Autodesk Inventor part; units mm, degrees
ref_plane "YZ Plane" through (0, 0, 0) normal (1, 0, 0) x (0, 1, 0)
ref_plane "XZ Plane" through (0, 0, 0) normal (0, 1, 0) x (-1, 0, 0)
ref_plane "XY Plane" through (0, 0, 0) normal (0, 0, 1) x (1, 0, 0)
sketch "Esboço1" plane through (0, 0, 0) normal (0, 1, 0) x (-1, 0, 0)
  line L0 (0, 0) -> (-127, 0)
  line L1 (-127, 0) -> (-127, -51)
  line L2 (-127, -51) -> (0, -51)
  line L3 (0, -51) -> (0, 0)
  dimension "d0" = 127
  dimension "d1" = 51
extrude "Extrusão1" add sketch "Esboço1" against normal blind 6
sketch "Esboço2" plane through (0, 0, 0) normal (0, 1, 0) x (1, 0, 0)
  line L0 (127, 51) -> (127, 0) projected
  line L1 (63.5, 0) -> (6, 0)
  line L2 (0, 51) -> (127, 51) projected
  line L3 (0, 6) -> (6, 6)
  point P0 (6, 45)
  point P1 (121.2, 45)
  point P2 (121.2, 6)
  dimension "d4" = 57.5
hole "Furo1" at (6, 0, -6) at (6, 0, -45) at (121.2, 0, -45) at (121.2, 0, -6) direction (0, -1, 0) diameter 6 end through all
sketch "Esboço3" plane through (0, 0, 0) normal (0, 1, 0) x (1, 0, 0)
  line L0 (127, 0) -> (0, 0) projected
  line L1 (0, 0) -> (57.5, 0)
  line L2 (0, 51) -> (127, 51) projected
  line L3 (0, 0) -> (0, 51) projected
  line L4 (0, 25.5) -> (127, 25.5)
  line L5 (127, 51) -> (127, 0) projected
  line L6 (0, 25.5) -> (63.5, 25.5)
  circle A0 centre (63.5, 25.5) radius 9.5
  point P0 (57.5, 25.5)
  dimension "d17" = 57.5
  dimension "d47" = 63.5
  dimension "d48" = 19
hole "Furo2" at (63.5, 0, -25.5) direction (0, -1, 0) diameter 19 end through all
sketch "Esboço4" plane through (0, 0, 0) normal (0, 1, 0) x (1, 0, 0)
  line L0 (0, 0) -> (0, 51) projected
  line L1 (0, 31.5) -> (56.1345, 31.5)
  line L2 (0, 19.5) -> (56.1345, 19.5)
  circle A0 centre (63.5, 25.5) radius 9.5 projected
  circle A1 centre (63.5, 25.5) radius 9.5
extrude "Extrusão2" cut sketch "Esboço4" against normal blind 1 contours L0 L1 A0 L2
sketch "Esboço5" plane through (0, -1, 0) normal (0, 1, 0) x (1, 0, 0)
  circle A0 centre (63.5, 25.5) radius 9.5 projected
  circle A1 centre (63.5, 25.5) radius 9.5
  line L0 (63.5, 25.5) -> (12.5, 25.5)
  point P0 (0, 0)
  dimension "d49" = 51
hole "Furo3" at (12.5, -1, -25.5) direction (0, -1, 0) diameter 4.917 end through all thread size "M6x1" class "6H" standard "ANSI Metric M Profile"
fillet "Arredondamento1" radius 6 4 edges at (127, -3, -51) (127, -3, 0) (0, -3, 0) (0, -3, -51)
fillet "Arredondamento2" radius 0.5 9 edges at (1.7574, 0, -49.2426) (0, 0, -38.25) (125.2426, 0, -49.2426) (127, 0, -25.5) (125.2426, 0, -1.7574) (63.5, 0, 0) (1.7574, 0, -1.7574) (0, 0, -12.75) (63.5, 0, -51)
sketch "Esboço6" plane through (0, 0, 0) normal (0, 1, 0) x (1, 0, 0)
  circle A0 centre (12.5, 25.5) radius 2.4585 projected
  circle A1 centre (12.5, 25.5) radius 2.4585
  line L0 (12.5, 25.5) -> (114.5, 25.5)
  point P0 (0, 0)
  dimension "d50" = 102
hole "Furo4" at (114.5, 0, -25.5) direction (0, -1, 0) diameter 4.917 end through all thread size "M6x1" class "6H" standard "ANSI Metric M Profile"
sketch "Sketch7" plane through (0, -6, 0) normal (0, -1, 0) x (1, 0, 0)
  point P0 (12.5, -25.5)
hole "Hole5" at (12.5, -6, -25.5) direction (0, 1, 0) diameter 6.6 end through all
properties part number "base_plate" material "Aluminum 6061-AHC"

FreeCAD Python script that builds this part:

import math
import FreeCAD as App
import Part
import Sketcher

V = App.Vector


def edges_at(feature, points):
    """Names of the edges that pass closest to the given points."""
    edges = feature.Shape.Edges
    near = lambda p: min(range(len(edges)), key=lambda i: edges[i].distToShape(Part.Vertex(*p))[0])
    return sorted({f"Edge{near(p) + 1}" for p in points})

doc = App.newDocument("Part")
params = doc.addObject("Spreadsheet::Sheet", "Params")
for row, (alias, value) in enumerate([
    ("sketch1_width", "127 mm"),
    ("sketch1_height", "51 mm"),
    ("pad1_length", "6 mm"),
    ("sketch2_diameter", "6 mm"),
    ("hole_diameter", "6 mm"),
    ("sketch3_diameter", "19 mm"),
    ("hole2_diameter", "19 mm"),
    ("sketch4_radius", "9.5 mm"),
    ("sketch4_height", "12 mm"),
    ("pocket1_length", "1 mm"),
    ("hole3_diameter", "4.917 mm"),
    ("fillet_radius", "6 mm"),
    ("fillet2_radius", "0.5 mm"),
    ("hole4_diameter", "4.917 mm"),
    ("sketch7_diameter", "6.6 mm"),
    ("hole5_diameter", "6.6 mm"),
], start=1):
    params.set(f"A{row}", alias)
    params.set(f"B{row}", "=" + value)
    params.setAlias(f"B{row}", alias)

body = doc.addObject("PartDesign::Body", "Body")

# Sketch on XZ plane
sketch1 = doc.addObject("Sketcher::SketchObject", "Sketch")
body.addObject(sketch1)
sketch1.AttachmentSupport = (doc.XZ_Plane, [""])
sketch1.MapMode = "FlatFace"
sketch1.addGeometry([
    Part.LineSegment(V(0, -51, 0), V(0, 0, 0)),
    Part.LineSegment(V(0, 0, 0), V(127, 0, 0)),
    Part.LineSegment(V(127, 0, 0), V(127, -51, 0)),
    Part.LineSegment(V(127, -51, 0), V(0, -51, 0)),
], False)
sketch1.addConstraint([
    Sketcher.Constraint("Coincident", 0, 2, 1, 1),
    Sketcher.Constraint("Coincident", 1, 2, 2, 1),
    Sketcher.Constraint("Coincident", 2, 2, 3, 1),
    Sketcher.Constraint("Coincident", 3, 2, 0, 1),
    Sketcher.Constraint("Vertical", 0),
    Sketcher.Constraint("Horizontal", 1),
    Sketcher.Constraint("Vertical", 2),
    Sketcher.Constraint("Horizontal", 3),
    Sketcher.Constraint("Coincident", 0, 2, -1, 1),
    Sketcher.Constraint("DistanceX", 1, 1, 1, 2, 127.0),
    Sketcher.Constraint("DistanceY", 0, 1, 0, 2, 51.0),
])
sketch1.setExpression("Constraints[9]", "Params.sketch1_width")
sketch1.setExpression("Constraints[10]", "Params.sketch1_height")
pad1 = doc.addObject("PartDesign::Pad", "Pad")
body.addObject(pad1)
pad1.Profile = sketch1
pad1.setExpression("Length", "Params.pad1_length")

# Sketch on XZ plane
sketch2 = doc.addObject("Sketcher::SketchObject", "Sketch001")
body.addObject(sketch2)
sketch2.AttachmentSupport = (doc.XZ_Plane, [""])
sketch2.MapMode = "FlatFace"
sketch2.addGeometry([
    Part.Circle(V(6, -6, 0), V(0, 0, 1), 3),
    Part.Circle(V(6, -45, 0), V(0, 0, 1), 3),
    Part.Circle(V(121.2, -45, 0), V(0, 0, 1), 3),
    Part.Circle(V(121.2, -6, 0), V(0, 0, 1), 3),
], False)
sketch2.addConstraint([
    Sketcher.Constraint("Equal", 0, 1),
    Sketcher.Constraint("Equal", 1, 2),
    Sketcher.Constraint("Equal", 2, 3),
    Sketcher.Constraint("Horizontal", 1, 3, 2, 3),
    Sketcher.Constraint("Horizontal", 0, 3, 3, 3),
    Sketcher.Constraint("Vertical", 0, 3, 1, 3),
    Sketcher.Constraint("Vertical", 2, 3, 3, 3),
    Sketcher.Constraint("Diameter", 0, 6.0),
    Sketcher.Constraint("DistanceX", -1, 1, 0, 3, 6.0),
    Sketcher.Constraint("DistanceY", 0, 3, -1, 1, 6.0),
    Sketcher.Constraint("DistanceY", 1, 3, -1, 1, 45.0),
    Sketcher.Constraint("DistanceX", -1, 1, 2, 3, 121.2),
])
sketch2.setExpression("Constraints[7]", "Params.sketch2_diameter")
doc.recompute()
hole = doc.addObject("PartDesign::Hole", "Hole")
body.addObject(hole)
hole.Profile = sketch2
hole.ThreadType = "None"
hole.setExpression("Diameter", "Params.hole_diameter")
hole.DepthType = "ThroughAll"
hole.Reversed = True

# Sketch on XZ plane
sketch3 = doc.addObject("Sketcher::SketchObject", "Sketch002")
body.addObject(sketch3)
sketch3.AttachmentSupport = (doc.XZ_Plane, [""])
sketch3.MapMode = "FlatFace"
sketch3.addGeometry(Part.Circle(V(64, -26, 0), V(0, 0, 1), 10), False)
sketch3.addConstraint([
    Sketcher.Constraint("Diameter", 0, 19.0),
    Sketcher.Constraint("DistanceX", -1, 1, 0, 3, 63.5),
    Sketcher.Constraint("DistanceY", 0, 3, -1, 1, 25.5),
])
sketch3.setExpression("Constraints[0]", "Params.sketch3_diameter")
doc.recompute()
hole2 = doc.addObject("PartDesign::Hole", "Hole001")
body.addObject(hole2)
hole2.Profile = sketch3
hole2.ThreadType = "None"
hole2.setExpression("Diameter", "Params.hole2_diameter")
hole2.DepthType = "ThroughAll"
hole2.Reversed = True

# Sketch on XZ plane
sketch4 = doc.addObject("Sketcher::SketchObject", "Sketch003")
body.addObject(sketch4)
sketch4.AttachmentSupport = (doc.XZ_Plane, [""])
sketch4.MapMode = "FlatFace"
sketch4.addGeometry([
    Part.LineSegment(V(0, -32, 0), V(0, -20, 0)),
    Part.LineSegment(V(0, -20, 0), V(56, -20, 0)),
    Part.ArcOfCircle(Part.Circle(V(64, -26, 0), V(0, 0, 1), 10), math.radians(141), math.radians(219)),
    Part.LineSegment(V(56, -32, 0), V(0, -32, 0)),
], False)
sketch4.addConstraint([
    Sketcher.Constraint("Coincident", 0, 2, 1, 1),
    Sketcher.Constraint("Coincident", 1, 2, 2, 1),
    Sketcher.Constraint("Coincident", 2, 2, 3, 1),
    Sketcher.Constraint("Coincident", 3, 2, 0, 1),
    Sketcher.Constraint("Vertical", 0),
    Sketcher.Constraint("Horizontal", 1),
    Sketcher.Constraint("Horizontal", 3),
    Sketcher.Constraint("PointOnObject", 0, 2, -2),
    Sketcher.Constraint("Vertical", 1, 2, 2, 2),
    Sketcher.Constraint("Radius", 2, 9.5),
    Sketcher.Constraint("DistanceY", 0, 1, 0, 2, 12.0),
    Sketcher.Constraint("DistanceX", -1, 1, 2, 3, 63.5),
    Sketcher.Constraint("DistanceY", 2, 3, -1, 1, 25.5),
])
sketch4.setExpression("Constraints[9]", "Params.sketch4_radius")
sketch4.setExpression("Constraints[10]", "Params.sketch4_height")
pocket1 = doc.addObject("PartDesign::Pocket", "Pocket")
body.addObject(pocket1)
pocket1.Profile = sketch4
pocket1.setExpression("Length", "Params.pocket1_length")
pocket1.Reversed = True

# Sketch on XZ plane
sketch5 = doc.addObject("Sketcher::SketchObject", "Sketch004")
body.addObject(sketch5)
sketch5.AttachmentSupport = (doc.XZ_Plane, [""])
sketch5.MapMode = "FlatFace"
sketch5.AttachmentOffset = App.Placement(V(0, 0, 1), App.Rotation())
sketch5.addGeometry(Part.Circle(V(12.5, -25.5, 0), V(0, 0, 1), 2.5), False)
sketch5.addConstraint([
    Sketcher.Constraint("Diameter", 0, 4.917),
    Sketcher.Constraint("DistanceX", -1, 1, 0, 3, 12.5),
    Sketcher.Constraint("DistanceY", 0, 3, -1, 1, 25.5),
])
doc.recompute()
hole3 = doc.addObject("PartDesign::Hole", "Hole002")
body.addObject(hole3)
hole3.Profile = sketch5
hole3.ThreadType = "None"
hole3.setExpression("Diameter", "Params.hole3_diameter")
hole3.DepthType = "ThroughAll"
hole3.Reversed = True
doc.recompute()

fillet = doc.addObject("PartDesign::Fillet", "Fillet")
body.addObject(fillet)
fillet.Base = (hole3, edges_at(hole3, [
    (127, -3, -51),
    (127, -3, 0),
    (0, -3, 0),
    (0, -3, -51),
]))
fillet.setExpression("Radius", "Params.fillet_radius")
doc.recompute()

fillet2 = doc.addObject("PartDesign::Fillet", "Fillet001")
body.addObject(fillet2)
fillet2.Base = (fillet, edges_at(fillet, [
    (1.757, 0, -49.243),
    (0, 0, -38.25),
    (125.243, 0, -49.243),
    (127, 0, -25.5),
    (125.243, 0, -1.757),
    (63.5, 0, 0),
    (1.757, 0, -1.757),
    (0, 0, -12.75),
    (63.5, 0, -51),
]))
fillet2.setExpression("Radius", "Params.fillet2_radius")

# Sketch on XZ plane
sketch6 = doc.addObject("Sketcher::SketchObject", "Sketch005")
body.addObject(sketch6)
sketch6.AttachmentSupport = (doc.XZ_Plane, [""])
sketch6.MapMode = "FlatFace"
sketch6.addGeometry(Part.Circle(V(114.5, -25.5, 0), V(0, 0, 1), 2.5), False)
sketch6.addConstraint([
    Sketcher.Constraint("Diameter", 0, 4.917),
    Sketcher.Constraint("DistanceX", -1, 1, 0, 3, 114.5),
    Sketcher.Constraint("DistanceY", 0, 3, -1, 1, 25.5),
])
doc.recompute()
hole4 = doc.addObject("PartDesign::Hole", "Hole003")
body.addObject(hole4)
hole4.Profile = sketch6
hole4.ThreadType = "None"
hole4.setExpression("Diameter", "Params.hole4_diameter")
hole4.DepthType = "ThroughAll"
hole4.Reversed = True

# Sketch on XZ plane
sketch7 = doc.addObject("Sketcher::SketchObject", "Sketch006")
body.addObject(sketch7)
sketch7.AttachmentSupport = (doc.XZ_Plane, [""])
sketch7.MapMode = "FlatFace"
sketch7.AttachmentOffset = App.Placement(V(0, 0, 6), App.Rotation())
sketch7.addGeometry(Part.Circle(V(12.5, -25.5, 0), V(0, 0, 1), 3.3), False)
sketch7.addConstraint([
    Sketcher.Constraint("Diameter", 0, 6.6),
    Sketcher.Constraint("DistanceX", -1, 1, 0, 3, 12.5),
    Sketcher.Constraint("DistanceY", 0, 3, -1, 1, 25.5),
])
sketch7.setExpression("Constraints[0]", "Params.sketch7_diameter")
doc.recompute()
hole5 = doc.addObject("PartDesign::Hole", "Hole004")
body.addObject(hole5)
hole5.Profile = sketch7
hole5.ThreadType = "None"
hole5.setExpression("Diameter", "Params.hole5_diameter")
hole5.DepthType = "ThroughAll"

doc.recompute()
